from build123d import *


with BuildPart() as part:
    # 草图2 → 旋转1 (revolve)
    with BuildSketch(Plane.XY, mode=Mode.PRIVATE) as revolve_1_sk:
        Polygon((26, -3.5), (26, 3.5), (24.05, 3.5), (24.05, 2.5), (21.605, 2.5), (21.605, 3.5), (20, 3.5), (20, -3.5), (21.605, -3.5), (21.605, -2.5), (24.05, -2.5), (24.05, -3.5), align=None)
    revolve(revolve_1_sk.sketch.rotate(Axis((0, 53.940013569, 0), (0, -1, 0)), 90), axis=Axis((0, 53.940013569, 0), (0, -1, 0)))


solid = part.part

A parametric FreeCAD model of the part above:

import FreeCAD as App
import Part
import Sketcher
Q = App.Units.Quantity

doc = App.newDocument("Part")
body = doc.addObject("PartDesign::Body", "Body")

sketch1 = doc.addObject("Sketcher::SketchObject", "Sketch")
body.addObject(sketch1)
sketch1.AttachmentSupport = (doc.XY_Plane, [""])
sketch1.MapMode = "FlatFace"
sketch1.addGeometry(Part.LineSegment(App.Vector(26, -3.5, 0), App.Vector(26, 3.5, 0)), False)
sketch1.addGeometry(Part.LineSegment(App.Vector(26, 3.5, 0), App.Vector(24.05, 3.5, 0)), False)
sketch1.addGeometry(Part.LineSegment(App.Vector(24.05, 3.5, 0), App.Vector(24.05, 2.5, 0)), False)
sketch1.addGeometry(Part.LineSegment(App.Vector(24.05, 2.5, 0), App.Vector(21.605, 2.5, 0)), False)
sketch1.addGeometry(Part.LineSegment(App.Vector(21.605, 2.5, 0), App.Vector(21.605, 3.5, 0)), False)
sketch1.addGeometry(Part.LineSegment(App.Vector(21.605, 3.5, 0), App.Vector(20, 3.5, 0)), False)
sketch1.addGeometry(Part.LineSegment(App.Vector(20, 3.5, 0), App.Vector(20, -3.5, 0)), False)
sketch1.addGeometry(Part.LineSegment(App.Vector(20, -3.5, 0), App.Vector(21.605, -3.5, 0)), False)
sketch1.addGeometry(Part.LineSegment(App.Vector(21.605, -3.5, 0), App.Vector(21.605, -2.5, 0)), False)
sketch1.addGeometry(Part.LineSegment(App.Vector(21.605, -2.5, 0), App.Vector(24.05, -2.5, 0)), False)
sketch1.addGeometry(Part.LineSegment(App.Vector(24.05, -2.5, 0), App.Vector(24.05, -3.5, 0)), False)
sketch1.addGeometry(Part.LineSegment(App.Vector(24.05, -3.5, 0), App.Vector(26, -3.5, 0)), False)
sketch1.addConstraint(Sketcher.Constraint("Coincident", 0, 2, 1, 1))
sketch1.addConstraint(Sketcher.Constraint("Coincident", 1, 2, 2, 1))
sketch1.addConstraint(Sketcher.Constraint("Coincident", 2, 2, 3, 1))
sketch1.addConstraint(Sketcher.Constraint("Coincident", 3, 2, 4, 1))
sketch1.addConstraint(Sketcher.Constraint("Coincident", 4, 2, 5, 1))
sketch1.addConstraint(Sketcher.Constraint("Coincident", 5, 2, 6, 1))
sketch1.addConstraint(Sketcher.Constraint("Coincident", 6, 2, 7, 1))
sketch1.addConstraint(Sketcher.Constraint("Coincident", 7, 2, 8, 1))
sketch1.addConstraint(Sketcher.Constraint("Coincident", 8, 2, 9, 1))
sketch1.addConstraint(Sketcher.Constraint("Coincident", 9, 2, 10, 1))
sketch1.addConstraint(Sketcher.Constraint("Coincident", 10, 2, 11, 1))
sketch1.addConstraint(Sketcher.Constraint("Coincident", 11, 2, 0, 1))
sketch1.addConstraint(Sketcher.Constraint("Vertical", 0))
sketch1.addConstraint(Sketcher.Constraint("Horizontal", 1))
sketch1.addConstraint(Sketcher.Constraint("Vertical", 2))
sketch1.addConstraint(Sketcher.Constraint("Horizontal", 3))
sketch1.addConstraint(Sketcher.Constraint("Vertical", 4))
sketch1.addConstraint(Sketcher.Constraint("Horizontal", 5))
sketch1.addConstraint(Sketcher.Constraint("Vertical", 6))
sketch1.addConstraint(Sketcher.Constraint("Horizontal", 7))
sketch1.addConstraint(Sketcher.Constraint("Vertical", 8))
sketch1.addConstraint(Sketcher.Constraint("Horizontal", 9))
sketch1.addConstraint(Sketcher.Constraint("Vertical", 10))
sketch1.addConstraint(Sketcher.Constraint("Horizontal", 11))
sketch1.addConstraint(Sketcher.Constraint("Symmetric", 4, 2, 7, 2, -1))
sketch1.addConstraint(Sketcher.Constraint("Symmetric", 2, 2, 9, 2, -1))
sketch1.addConstraint(Sketcher.Constraint("Horizontal", 1, 2, 4, 2))
sketch1.addConstraint(Sketcher.Constraint("Horizontal", 7, 2, 10, 2))
sketch1.addConstraint(Sketcher.Constraint("DistanceY", 0, 1, 0, 2, Q("7 mm")))
sketch1.addConstraint(Sketcher.Constraint("DistanceY", 2, 2, 2, 1, Q("1 mm")))
sketch1.addConstraint(Sketcher.Constraint("DistanceX", -1, 1, 0, 2, Q("26 mm")))
sketch1.addConstraint(Sketcher.Constraint("DistanceX", -1, 1, 5, 2, Q("20 mm")))
sketch1.addConstraint(Sketcher.Constraint("DistanceX", 1, 2, 1, 1, Q("1.95 mm")))
sketch1.addConstraint(Sketcher.Constraint("DistanceX", 3, 2, 3, 1, Q("2.445 mm")))
revolution = doc.addObject("PartDesign::Revolution", "Revolution")
body.addObject(revolution)
revolution.Profile = sketch1
revolution.ReferenceAxis = (sketch1, ["V_Axis"])
revolution.Angle = 360

doc.recompute()
